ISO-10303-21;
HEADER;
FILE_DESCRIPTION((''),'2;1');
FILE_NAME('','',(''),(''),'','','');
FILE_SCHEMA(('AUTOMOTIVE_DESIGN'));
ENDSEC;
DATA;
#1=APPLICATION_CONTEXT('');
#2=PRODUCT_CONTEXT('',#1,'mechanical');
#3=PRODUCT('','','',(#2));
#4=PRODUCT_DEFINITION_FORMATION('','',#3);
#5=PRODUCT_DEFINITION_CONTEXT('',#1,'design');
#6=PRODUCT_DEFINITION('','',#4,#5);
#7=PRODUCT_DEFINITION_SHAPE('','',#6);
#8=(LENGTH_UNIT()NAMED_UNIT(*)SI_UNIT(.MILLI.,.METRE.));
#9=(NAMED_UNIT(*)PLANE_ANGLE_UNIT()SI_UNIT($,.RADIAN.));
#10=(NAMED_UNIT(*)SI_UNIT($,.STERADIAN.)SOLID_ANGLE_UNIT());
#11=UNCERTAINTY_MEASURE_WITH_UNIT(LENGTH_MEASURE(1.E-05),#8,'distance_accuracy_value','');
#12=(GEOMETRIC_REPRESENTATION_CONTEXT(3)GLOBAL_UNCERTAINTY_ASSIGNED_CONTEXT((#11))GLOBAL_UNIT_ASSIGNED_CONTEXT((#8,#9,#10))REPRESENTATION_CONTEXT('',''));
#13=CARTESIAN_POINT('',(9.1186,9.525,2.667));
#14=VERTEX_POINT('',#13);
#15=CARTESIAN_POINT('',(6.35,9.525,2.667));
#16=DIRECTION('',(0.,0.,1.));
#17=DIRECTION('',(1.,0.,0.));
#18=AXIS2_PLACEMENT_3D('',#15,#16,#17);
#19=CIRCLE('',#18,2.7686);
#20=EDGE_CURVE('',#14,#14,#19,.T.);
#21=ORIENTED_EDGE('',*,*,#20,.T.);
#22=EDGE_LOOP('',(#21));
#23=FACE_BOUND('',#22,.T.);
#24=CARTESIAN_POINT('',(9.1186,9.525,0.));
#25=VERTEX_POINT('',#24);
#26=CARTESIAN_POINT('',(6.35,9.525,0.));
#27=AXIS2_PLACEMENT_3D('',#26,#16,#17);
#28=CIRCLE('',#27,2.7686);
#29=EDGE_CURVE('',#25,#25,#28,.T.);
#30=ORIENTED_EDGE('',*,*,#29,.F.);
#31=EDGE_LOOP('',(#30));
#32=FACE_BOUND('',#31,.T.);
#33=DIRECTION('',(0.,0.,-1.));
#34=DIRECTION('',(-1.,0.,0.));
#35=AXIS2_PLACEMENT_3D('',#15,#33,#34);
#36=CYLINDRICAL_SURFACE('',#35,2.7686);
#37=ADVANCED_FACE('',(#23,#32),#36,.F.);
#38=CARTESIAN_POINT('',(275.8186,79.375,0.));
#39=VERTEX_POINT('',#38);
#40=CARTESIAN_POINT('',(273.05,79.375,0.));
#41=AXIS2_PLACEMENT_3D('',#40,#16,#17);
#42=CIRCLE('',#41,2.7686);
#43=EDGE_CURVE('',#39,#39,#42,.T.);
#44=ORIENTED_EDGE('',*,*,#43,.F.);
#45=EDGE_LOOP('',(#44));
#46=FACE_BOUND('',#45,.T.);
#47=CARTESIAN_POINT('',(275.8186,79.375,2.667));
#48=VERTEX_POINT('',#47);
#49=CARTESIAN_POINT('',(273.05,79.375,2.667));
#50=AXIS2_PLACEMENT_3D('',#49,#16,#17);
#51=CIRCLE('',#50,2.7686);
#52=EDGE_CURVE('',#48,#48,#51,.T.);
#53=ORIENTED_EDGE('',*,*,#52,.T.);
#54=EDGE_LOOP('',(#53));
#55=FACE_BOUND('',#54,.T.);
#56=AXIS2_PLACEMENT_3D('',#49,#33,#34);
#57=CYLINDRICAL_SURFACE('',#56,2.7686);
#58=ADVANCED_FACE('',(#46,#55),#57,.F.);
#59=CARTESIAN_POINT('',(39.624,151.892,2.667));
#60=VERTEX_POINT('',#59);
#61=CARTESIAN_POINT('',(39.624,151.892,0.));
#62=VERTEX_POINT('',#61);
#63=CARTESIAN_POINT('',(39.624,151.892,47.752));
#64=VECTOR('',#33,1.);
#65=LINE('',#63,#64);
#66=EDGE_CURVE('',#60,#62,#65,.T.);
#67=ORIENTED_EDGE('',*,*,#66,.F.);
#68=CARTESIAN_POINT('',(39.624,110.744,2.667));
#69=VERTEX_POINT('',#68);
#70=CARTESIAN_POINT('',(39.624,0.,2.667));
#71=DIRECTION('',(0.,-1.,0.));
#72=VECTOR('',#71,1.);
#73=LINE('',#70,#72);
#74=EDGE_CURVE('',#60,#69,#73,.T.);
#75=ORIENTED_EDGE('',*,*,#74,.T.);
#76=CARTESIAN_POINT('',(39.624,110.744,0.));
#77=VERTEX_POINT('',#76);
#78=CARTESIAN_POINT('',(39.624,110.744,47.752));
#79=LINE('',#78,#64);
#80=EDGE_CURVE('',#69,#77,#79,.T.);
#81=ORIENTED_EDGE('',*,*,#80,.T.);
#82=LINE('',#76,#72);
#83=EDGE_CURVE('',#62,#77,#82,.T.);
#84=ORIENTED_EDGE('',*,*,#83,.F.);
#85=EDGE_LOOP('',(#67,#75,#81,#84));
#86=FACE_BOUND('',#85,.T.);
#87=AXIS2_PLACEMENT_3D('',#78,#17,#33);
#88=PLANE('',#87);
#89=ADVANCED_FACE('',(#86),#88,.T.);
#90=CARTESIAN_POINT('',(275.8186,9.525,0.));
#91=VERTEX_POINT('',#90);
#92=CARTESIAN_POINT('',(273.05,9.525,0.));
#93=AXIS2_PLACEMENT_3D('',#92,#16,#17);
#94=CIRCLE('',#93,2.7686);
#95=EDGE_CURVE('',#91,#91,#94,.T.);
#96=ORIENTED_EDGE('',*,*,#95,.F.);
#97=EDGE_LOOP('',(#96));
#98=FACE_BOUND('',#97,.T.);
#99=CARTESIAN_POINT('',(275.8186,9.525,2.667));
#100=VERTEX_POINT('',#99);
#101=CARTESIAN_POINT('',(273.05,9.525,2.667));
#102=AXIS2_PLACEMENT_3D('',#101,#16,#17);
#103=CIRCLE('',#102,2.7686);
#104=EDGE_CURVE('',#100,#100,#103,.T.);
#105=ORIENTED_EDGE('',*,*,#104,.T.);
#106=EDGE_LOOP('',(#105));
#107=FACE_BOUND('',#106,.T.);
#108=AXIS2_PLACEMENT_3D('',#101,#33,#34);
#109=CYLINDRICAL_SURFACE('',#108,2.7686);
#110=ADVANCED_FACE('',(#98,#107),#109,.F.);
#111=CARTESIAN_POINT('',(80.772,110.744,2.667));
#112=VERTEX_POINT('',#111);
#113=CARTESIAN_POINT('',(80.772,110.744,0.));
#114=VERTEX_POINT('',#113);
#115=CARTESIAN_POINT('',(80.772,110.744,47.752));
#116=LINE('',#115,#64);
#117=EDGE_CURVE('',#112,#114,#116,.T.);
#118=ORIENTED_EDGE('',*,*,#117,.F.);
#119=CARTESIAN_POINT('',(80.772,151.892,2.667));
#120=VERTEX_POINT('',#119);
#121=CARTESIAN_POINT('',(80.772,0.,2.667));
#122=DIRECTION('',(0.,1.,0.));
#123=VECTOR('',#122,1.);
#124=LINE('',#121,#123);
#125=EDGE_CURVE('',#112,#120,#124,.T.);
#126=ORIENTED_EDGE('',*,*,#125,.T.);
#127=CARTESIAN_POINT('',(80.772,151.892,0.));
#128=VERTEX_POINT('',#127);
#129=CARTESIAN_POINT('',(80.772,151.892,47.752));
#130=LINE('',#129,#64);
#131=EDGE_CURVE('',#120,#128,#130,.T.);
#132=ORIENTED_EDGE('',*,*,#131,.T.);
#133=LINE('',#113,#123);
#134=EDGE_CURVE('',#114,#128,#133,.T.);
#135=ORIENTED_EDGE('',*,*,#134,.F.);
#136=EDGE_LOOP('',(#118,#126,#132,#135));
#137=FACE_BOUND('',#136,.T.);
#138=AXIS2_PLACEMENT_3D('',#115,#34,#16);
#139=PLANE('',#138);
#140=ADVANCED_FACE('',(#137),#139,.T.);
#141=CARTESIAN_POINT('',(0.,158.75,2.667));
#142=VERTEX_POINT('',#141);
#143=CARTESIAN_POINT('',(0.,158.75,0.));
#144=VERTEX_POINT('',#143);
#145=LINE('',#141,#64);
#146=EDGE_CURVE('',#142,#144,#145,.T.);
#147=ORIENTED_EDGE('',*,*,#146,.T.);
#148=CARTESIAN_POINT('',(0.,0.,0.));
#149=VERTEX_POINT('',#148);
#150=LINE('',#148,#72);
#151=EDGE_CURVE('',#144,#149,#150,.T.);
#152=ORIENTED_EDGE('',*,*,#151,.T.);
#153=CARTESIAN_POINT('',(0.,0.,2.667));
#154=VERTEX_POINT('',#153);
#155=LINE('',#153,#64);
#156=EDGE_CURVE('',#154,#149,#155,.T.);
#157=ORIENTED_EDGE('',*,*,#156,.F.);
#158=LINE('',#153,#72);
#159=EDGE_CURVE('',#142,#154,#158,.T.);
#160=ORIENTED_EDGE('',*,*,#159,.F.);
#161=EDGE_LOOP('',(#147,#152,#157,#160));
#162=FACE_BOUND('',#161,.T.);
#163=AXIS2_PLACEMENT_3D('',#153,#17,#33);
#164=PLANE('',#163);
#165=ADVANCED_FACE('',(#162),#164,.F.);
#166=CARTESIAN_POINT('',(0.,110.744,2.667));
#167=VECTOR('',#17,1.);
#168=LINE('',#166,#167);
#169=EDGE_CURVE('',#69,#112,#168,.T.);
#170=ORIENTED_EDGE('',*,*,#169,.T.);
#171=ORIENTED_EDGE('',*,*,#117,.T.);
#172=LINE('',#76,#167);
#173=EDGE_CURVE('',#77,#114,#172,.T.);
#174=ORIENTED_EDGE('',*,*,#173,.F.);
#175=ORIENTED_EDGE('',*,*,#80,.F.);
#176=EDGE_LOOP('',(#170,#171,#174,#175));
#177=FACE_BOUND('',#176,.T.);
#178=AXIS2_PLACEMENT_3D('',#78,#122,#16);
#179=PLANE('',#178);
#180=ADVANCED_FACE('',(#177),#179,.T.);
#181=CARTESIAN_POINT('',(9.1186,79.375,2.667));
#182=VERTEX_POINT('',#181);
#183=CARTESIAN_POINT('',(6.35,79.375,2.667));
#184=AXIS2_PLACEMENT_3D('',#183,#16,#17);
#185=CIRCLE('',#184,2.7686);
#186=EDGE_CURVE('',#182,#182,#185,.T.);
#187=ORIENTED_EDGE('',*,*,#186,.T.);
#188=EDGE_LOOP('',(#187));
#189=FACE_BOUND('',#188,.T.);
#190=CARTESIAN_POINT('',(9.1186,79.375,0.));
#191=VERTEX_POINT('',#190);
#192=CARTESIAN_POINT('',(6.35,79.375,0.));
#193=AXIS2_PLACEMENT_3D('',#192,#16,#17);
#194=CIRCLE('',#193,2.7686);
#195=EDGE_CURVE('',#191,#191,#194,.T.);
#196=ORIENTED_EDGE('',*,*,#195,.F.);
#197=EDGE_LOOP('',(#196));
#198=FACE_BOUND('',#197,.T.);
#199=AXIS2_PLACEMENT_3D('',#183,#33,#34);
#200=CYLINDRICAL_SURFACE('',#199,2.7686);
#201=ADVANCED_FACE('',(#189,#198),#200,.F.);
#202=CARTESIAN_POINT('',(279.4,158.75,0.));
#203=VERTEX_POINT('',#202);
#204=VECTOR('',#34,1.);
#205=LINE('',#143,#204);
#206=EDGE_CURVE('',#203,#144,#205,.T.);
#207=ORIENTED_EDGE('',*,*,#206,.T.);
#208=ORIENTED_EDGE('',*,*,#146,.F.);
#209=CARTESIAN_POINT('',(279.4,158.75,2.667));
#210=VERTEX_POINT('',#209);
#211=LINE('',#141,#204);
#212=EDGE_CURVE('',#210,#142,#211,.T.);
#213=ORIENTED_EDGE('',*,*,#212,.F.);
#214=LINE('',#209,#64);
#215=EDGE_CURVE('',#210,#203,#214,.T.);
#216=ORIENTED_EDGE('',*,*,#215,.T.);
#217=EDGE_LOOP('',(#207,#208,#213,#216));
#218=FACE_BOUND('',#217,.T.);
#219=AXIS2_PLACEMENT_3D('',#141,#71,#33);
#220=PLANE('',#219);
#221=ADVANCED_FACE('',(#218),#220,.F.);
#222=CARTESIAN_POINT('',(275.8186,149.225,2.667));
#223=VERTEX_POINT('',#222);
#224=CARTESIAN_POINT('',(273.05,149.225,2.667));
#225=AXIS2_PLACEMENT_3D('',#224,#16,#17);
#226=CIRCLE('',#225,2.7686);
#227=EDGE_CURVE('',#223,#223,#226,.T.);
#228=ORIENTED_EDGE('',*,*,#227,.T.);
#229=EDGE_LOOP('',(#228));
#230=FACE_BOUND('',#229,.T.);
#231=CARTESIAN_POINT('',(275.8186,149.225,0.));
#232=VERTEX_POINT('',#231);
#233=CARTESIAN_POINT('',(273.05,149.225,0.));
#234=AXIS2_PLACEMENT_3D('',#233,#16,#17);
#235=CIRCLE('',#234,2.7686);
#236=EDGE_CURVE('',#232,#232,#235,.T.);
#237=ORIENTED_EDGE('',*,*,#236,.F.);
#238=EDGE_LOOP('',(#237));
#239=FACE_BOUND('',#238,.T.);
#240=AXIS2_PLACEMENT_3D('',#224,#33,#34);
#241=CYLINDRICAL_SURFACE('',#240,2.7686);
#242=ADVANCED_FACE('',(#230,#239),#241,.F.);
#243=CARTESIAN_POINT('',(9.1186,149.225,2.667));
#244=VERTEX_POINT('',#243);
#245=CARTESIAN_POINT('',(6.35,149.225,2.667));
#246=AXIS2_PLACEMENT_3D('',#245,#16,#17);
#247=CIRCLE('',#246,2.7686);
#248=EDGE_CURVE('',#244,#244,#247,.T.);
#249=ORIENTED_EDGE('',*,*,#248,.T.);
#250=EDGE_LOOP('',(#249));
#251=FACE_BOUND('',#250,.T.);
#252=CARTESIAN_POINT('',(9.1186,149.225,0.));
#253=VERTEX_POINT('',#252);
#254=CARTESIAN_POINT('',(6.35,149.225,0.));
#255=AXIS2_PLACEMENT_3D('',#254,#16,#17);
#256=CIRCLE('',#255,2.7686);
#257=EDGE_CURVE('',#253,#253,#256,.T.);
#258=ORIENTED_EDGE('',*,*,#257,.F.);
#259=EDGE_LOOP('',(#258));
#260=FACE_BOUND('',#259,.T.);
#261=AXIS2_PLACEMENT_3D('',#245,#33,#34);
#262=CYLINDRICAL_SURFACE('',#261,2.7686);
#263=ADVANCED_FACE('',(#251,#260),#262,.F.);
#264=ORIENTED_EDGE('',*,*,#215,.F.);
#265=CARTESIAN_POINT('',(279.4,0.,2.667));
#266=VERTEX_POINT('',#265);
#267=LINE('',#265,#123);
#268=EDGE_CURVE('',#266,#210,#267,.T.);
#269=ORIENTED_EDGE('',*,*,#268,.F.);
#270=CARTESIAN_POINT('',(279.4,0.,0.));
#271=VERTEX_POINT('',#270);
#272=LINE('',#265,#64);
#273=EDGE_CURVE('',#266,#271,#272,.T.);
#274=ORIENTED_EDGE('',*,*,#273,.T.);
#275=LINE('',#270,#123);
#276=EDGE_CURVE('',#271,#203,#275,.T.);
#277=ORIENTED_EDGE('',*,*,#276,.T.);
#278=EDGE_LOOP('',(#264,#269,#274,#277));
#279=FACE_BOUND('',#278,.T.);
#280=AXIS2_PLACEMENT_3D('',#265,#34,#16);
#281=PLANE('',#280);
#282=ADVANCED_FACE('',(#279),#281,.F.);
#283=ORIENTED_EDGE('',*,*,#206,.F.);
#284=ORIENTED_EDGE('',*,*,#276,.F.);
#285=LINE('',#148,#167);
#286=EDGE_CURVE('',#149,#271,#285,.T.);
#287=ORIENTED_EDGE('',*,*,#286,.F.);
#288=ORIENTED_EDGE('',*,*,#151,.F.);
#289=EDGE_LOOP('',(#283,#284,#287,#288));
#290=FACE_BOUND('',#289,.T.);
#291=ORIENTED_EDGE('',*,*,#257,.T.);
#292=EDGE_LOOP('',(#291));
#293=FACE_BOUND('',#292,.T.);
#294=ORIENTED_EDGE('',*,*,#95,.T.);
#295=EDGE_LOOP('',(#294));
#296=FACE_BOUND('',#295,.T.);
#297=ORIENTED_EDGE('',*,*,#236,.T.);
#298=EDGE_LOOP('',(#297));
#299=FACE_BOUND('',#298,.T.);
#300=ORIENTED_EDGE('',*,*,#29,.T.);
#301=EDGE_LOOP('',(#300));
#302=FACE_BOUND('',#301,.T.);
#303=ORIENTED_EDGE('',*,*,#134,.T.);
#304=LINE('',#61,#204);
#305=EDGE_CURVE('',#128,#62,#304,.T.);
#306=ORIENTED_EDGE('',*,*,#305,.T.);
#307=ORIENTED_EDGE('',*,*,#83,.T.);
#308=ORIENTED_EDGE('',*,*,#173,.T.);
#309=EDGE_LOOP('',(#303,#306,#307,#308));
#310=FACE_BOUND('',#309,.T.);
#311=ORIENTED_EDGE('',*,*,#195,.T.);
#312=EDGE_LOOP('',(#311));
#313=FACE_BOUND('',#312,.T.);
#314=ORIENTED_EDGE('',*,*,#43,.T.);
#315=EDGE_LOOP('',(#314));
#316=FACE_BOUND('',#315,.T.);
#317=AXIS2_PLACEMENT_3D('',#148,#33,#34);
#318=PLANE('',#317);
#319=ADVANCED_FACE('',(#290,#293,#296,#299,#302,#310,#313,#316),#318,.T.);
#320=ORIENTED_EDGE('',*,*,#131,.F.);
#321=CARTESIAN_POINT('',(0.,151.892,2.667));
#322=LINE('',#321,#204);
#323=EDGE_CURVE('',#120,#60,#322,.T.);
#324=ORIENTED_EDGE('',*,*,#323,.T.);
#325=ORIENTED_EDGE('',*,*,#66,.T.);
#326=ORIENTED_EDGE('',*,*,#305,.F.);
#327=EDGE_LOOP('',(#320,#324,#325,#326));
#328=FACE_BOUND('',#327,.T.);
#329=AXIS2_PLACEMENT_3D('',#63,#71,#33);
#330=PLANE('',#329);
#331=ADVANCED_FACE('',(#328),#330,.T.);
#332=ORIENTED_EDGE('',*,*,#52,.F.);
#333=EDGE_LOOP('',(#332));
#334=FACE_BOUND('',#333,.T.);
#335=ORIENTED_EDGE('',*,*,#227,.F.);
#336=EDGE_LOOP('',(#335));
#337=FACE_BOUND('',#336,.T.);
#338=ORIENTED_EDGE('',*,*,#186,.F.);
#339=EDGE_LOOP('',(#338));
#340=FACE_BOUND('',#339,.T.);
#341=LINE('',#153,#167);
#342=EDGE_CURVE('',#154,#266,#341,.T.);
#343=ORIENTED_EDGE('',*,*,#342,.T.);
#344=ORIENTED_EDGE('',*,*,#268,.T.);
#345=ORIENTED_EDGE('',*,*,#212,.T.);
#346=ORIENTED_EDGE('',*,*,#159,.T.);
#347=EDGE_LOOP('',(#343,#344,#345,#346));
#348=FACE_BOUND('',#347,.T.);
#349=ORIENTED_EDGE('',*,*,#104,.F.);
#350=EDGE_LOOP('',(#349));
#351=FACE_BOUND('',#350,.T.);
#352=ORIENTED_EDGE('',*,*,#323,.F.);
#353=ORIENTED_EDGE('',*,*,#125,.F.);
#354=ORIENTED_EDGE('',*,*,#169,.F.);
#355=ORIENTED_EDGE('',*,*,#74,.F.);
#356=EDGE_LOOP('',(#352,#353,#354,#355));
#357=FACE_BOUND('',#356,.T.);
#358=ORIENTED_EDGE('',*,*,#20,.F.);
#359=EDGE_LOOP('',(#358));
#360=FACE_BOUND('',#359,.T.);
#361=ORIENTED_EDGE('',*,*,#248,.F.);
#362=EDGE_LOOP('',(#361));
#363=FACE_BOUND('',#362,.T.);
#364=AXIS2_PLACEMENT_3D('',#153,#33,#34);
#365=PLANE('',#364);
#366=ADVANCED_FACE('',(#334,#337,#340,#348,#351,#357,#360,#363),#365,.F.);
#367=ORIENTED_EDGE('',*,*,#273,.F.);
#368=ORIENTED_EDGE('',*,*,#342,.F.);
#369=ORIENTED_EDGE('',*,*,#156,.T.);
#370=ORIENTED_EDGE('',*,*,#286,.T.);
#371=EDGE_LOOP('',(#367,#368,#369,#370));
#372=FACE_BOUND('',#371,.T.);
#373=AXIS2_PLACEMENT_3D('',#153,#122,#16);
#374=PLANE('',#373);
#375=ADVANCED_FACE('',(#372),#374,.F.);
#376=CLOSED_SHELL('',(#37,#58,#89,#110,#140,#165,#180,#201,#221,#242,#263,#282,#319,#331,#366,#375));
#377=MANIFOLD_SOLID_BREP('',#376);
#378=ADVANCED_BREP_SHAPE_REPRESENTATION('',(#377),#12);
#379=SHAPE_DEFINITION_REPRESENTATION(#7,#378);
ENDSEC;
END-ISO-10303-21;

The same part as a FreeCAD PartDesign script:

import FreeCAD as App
import Part
import Sketcher

V = App.Vector
Q = App.Units.Quantity

doc = App.newDocument("Part")
params = doc.addObject("Spreadsheet::Sheet", "Params")
for row, (alias, value) in enumerate([
    ("sketch1_width", "11 in"),
    ("sketch1_height", "6.25 in"),
    ("pad1_length", "0.105 in"),
    ("sketch2_width", "1.62 in"),
    ("pocket1_length", "1.88 in"),
    ("sketch3_diameter", "0.218 in"),
], start=1):
    params.set(f"A{row}", alias)
    params.set(f"B{row}", "=" + value)
    params.setAlias(f"B{row}", alias)

body = doc.addObject("PartDesign::Body", "Body")

# Sketch on XY plane
sketch1 = body.newObject("Sketcher::SketchObject", "Sketch")
sketch1.AttachmentSupport = (doc.getObject("XY_Plane"), [""])
sketch1.MapMode = "FlatFace"
sketch1.addGeometry([
    Part.LineSegment(V(0, 158.75, 0), V(0, 0, 0)),
    Part.LineSegment(V(0, 0, 0), V(279.4, 0, 0)),
    Part.LineSegment(V(279.4, 0, 0), V(279.4, 158.75, 0)),
    Part.LineSegment(V(279.4, 158.75, 0), V(0, 158.75, 0)),
], False)
sketch1.addConstraint([
    Sketcher.Constraint("Coincident", 0, 2, 1, 1),
    Sketcher.Constraint("Coincident", 1, 2, 2, 1),
    Sketcher.Constraint("Coincident", 2, 2, 3, 1),
    Sketcher.Constraint("Coincident", 3, 2, 0, 1),
    Sketcher.Constraint("Vertical", 0),
    Sketcher.Constraint("Horizontal", 1),
    Sketcher.Constraint("Vertical", 2),
    Sketcher.Constraint("Horizontal", 3),
    Sketcher.Constraint("Coincident", 0, 2, -1, 1),
    Sketcher.Constraint("DistanceX", 1, 1, 1, 2, Q("11 in")),
    Sketcher.Constraint("DistanceY", 0, 2, 0, 1, Q("6.25 in")),
])
sketch1.setExpression("Constraints[9]", "Params.sketch1_width")
sketch1.setExpression("Constraints[10]", "Params.sketch1_height")
pad1 = body.newObject("PartDesign::Pad", "Pad")
pad1.Profile = sketch1
pad1.setExpression("Length", "Params.pad1_length")

# Sketch on XY plane
sketch2 = body.newObject("Sketcher::SketchObject", "Sketch001")
sketch2.AttachmentSupport = (doc.getObject("XY_Plane"), [""])
sketch2.MapMode = "FlatFace"
sketch2.addGeometry([
    Part.LineSegment(V(39.624, 151.892, 0), V(39.624, 110.744, 0)),
    Part.LineSegment(V(39.624, 110.744, 0), V(80.772, 110.744, 0)),
    Part.LineSegment(V(80.772, 110.744, 0), V(80.772, 151.892, 0)),
    Part.LineSegment(V(80.772, 151.892, 0), V(39.624, 151.892, 0)),
], False)
sketch2.addConstraint([
    Sketcher.Constraint("Coincident", 0, 2, 1, 1),
    Sketcher.Constraint("Coincident", 1, 2, 2, 1),
    Sketcher.Constraint("Coincident", 2, 2, 3, 1),
    Sketcher.Constraint("Coincident", 3, 2, 0, 1),
    Sketcher.Constraint("Vertical", 0),
    Sketcher.Constraint("Horizontal", 1),
    Sketcher.Constraint("Vertical", 2),
    Sketcher.Constraint("Horizontal", 3),
    Sketcher.Constraint("Equal", 3, 0),
    Sketcher.Constraint("DistanceX", 1, 1, 1, 2, Q("1.62 in")),
    Sketcher.Constraint("DistanceX", -1, 1, 0, 2, Q("1.56 in")),
    Sketcher.Constraint("DistanceY", -1, 1, 0, 2, Q("4.36 in")),
])
sketch2.setExpression("Constraints[9]", "Params.sketch2_width")
pocket1 = body.newObject("PartDesign::Pocket", "Pocket")
pocket1.Profile = sketch2
pocket1.setExpression("Length", "Params.pocket1_length")
pocket1.Reversed = True

# Sketch on XY plane
sketch3 = body.newObject("Sketcher::SketchObject", "Sketch002")
sketch3.AttachmentSupport = (doc.getObject("XY_Plane"), [""])
sketch3.MapMode = "FlatFace"
sketch3.addGeometry([
    Part.Circle(V(6.35, 9.525, 0), V(0, 0, 1), 2.7686),  # 0
    Part.Circle(V(6.35, 79.375, 0), V(0, 0, 1), 2.7686),  # 1
    Part.Circle(V(6.35, 149.225, 0), V(0, 0, 1), 2.7686),  # 2
    Part.Circle(V(273.05, 9.525, 0), V(0, 0, 1), 2.7686),  # 3
    Part.Circle(V(273.05, 79.375, 0), V(0, 0, 1), 2.7686),  # 4
    Part.Circle(V(273.05, 149.225, 0), V(0, 0, 1), 2.7686),  # 5
], False)
sketch3.addConstraint([
    Sketcher.Constraint("Equal", 0, 1),
    Sketcher.Constraint("Equal", 1, 2),
    Sketcher.Constraint("Equal", 2, 3),
    Sketcher.Constraint("Equal", 3, 4),
    Sketcher.Constraint("Equal", 4, 5),
    Sketcher.Constraint("Horizontal", 0, 3, 3, 3),
    Sketcher.Constraint("Horizontal", 1, 3, 4, 3),
    Sketcher.Constraint("Horizontal", 2, 3, 5, 3),
    Sketcher.Constraint("Vertical", 0, 3, 1, 3),
    Sketcher.Constraint("Vertical", 1, 3, 2, 3),
    Sketcher.Constraint("Vertical", 3, 3, 4, 3),
    Sketcher.Constraint("Vertical", 4, 3, 5, 3),
    Sketcher.Constraint("Diameter", 0, Q("0.218 in")),
    Sketcher.Constraint("DistanceY", 0, 3, 2, 3, Q("5.5 in")),
    Sketcher.Constraint("DistanceX", 0, 3, 3, 3, Q("10.5 in")),
    Sketcher.Constraint("DistanceX", -1, 1, 0, 3, Q("0.25 in")),
    Sketcher.Constraint("DistanceY", 0, 3, 1, 3, Q("2.75 in")),
    Sketcher.Constraint("DistanceY", -1, 1, 0, 3, Q("0.375 in")),
])
sketch3.setExpression("Constraints[12]", "Params.sketch3_diameter")
pocket2 = body.newObject("PartDesign::Pocket", "Pocket001")
pocket2.Profile = sketch3
pocket2.Type = "ThroughAll"
pocket2.Reversed = True

doc.recompute()
